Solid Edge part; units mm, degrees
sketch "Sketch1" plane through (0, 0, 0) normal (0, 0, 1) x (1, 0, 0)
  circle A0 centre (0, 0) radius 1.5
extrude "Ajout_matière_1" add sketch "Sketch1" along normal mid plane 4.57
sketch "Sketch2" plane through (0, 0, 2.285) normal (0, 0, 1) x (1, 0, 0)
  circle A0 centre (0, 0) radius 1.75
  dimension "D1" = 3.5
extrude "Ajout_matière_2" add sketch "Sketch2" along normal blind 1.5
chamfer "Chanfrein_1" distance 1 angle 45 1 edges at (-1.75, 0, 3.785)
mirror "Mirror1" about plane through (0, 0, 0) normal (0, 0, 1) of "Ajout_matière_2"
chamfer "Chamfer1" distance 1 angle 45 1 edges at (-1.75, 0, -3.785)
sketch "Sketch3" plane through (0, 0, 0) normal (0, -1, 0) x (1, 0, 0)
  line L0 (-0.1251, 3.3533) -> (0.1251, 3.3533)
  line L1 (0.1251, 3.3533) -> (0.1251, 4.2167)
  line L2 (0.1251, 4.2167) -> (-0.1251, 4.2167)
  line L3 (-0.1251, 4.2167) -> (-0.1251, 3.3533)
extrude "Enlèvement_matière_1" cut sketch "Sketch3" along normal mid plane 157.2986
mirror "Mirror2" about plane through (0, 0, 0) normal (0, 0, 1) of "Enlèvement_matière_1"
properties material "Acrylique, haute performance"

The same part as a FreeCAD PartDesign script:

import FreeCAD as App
import Part
import Sketcher
from FreeCAD import Vector
Q = App.Units.Quantity


def edges_at(feature, points):
    """Names of the edges that pass closest to the given points."""
    edges = feature.Shape.Edges
    near = lambda p: min(range(len(edges)), key=lambda i: edges[i].distToShape(Part.Vertex(*p))[0])
    return sorted({f"Edge{near(p) + 1}" for p in points})


def add_polygon(sketch, points):
    """Adds a closed chain of lines whose ends are joined by coincident constraints."""
    first, n = sketch.GeometryCount, len(points)
    for a, b in zip(points, points[1:] + points[:1]):
        sketch.addGeometry(Part.LineSegment(App.Vector(*a, 0), App.Vector(*b, 0)), False)
    for i in range(n):
        sketch.addConstraint(Sketcher.Constraint("Coincident", first + i, 2, first + (i + 1) % n, 1))

doc = App.newDocument("Part")
body = doc.addObject("PartDesign::Body", "Body")

sketch1 = body.newObject("Sketcher::SketchObject", "Sketch")
sketch1.AttachmentSupport = (doc.getObject("XY_Plane"), [""])
sketch1.MapMode = "FlatFace"
sketch1.addGeometry(Part.Circle(Vector(0, 0, 0), Vector(0, 0, 1), 1.5), False)
sketch1.addConstraint(Sketcher.Constraint("Coincident", 0, 3, -1, 1))
sketch1.addConstraint(Sketcher.Constraint("Diameter", 0, Q("3 mm")))
pad1 = body.newObject("PartDesign::Pad", "Pad")
pad1.Profile = sketch1
pad1.Length = 4.57
pad1.Midplane = True

sketch2 = body.newObject("Sketcher::SketchObject", "Sketch001")
sketch2.AttachmentSupport = (doc.getObject("XY_Plane"), [""])
sketch2.MapMode = "FlatFace"
sketch2.AttachmentOffset = App.Placement(Vector(0, 0, 2.285), App.Rotation())
sketch2.addGeometry(Part.Circle(Vector(0, 0, 0), Vector(0, 0, 1), 1.8), False)
sketch2.addConstraint(Sketcher.Constraint("Coincident", 0, 3, -1, 1))
sketch2.addConstraint(Sketcher.Constraint("Diameter", 0, Q("3.5 mm")))
pad2 = body.newObject("PartDesign::Pad", "Pad001")
pad2.Profile = sketch2
pad2.Length = 1.5
doc.recompute()

chamfer = body.newObject("PartDesign::Chamfer", "Chamfer")
chamfer.Base = (pad2, edges_at(pad2, [(-1.75, 0, 3.785)]))
chamfer.Size = 1
doc.recompute()

mirrored = body.newObject("PartDesign::Mirrored", "Mirrored")
mirrored.Originals = [pad2]
mirrored.MirrorPlane = (doc.getObject("XY_Plane"), [""])
body.Tip = mirrored
doc.recompute()

chamfer2 = body.newObject("PartDesign::Chamfer", "Chamfer001")
chamfer2.Base = (mirrored, edges_at(mirrored, [(-1.75, 0, -3.785)]))
chamfer2.Size = 1

sketch3 = body.newObject("Sketcher::SketchObject", "Sketch002")
sketch3.AttachmentSupport = (doc.getObject("XZ_Plane"), [""])
sketch3.MapMode = "FlatFace"
add_polygon(sketch3, [(-0.13, 4.22), (-0.13, 3.35), (0.13, 3.35), (0.13, 4.22)])
sketch3.addConstraint(Sketcher.Constraint("Vertical", 0))
sketch3.addConstraint(Sketcher.Constraint("Horizontal", 1))
sketch3.addConstraint(Sketcher.Constraint("Vertical", 2))
sketch3.addConstraint(Sketcher.Constraint("Horizontal", 3))
sketch3.addConstraint(Sketcher.Constraint("DistanceX", 1, 1, 1, 2, Q("0.2502 mm")))
sketch3.addConstraint(Sketcher.Constraint("DistanceY", 0, 2, 0, 1, Q("0.8634 mm")))
sketch3.addConstraint(Sketcher.Constraint("DistanceX", 0, 2, -1, 1, Q("0.125 mm")))
sketch3.addConstraint(Sketcher.Constraint("DistanceY", -1, 1, 0, 2, Q("3.3533 mm")))
pocket1 = body.newObject("PartDesign::Pocket", "Pocket")
pocket1.Profile = sketch3
pocket1.Length = 157.2986
pocket1.Midplane = True
doc.recompute()

mirrored2 = body.newObject("PartDesign::Mirrored", "Mirrored001")
mirrored2.Originals = [pocket1]
mirrored2.MirrorPlane = (doc.getObject("XY_Plane"), [""])
body.Tip = mirrored2

doc.recompute()
